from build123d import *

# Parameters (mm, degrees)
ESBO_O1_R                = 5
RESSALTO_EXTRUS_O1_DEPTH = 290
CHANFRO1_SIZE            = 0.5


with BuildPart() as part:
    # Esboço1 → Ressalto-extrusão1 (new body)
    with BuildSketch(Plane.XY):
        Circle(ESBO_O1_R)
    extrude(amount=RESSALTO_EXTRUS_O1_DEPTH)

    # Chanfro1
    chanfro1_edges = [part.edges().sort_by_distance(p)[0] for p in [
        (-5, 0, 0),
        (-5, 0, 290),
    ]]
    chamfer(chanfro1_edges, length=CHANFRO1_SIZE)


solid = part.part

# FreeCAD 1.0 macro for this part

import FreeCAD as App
import Part
import Sketcher


def edges_at(feature, points):
    """Names of the edges that pass closest to the given points."""
    edges = feature.Shape.Edges
    near = lambda p: min(range(len(edges)), key=lambda i: edges[i].distToShape(Part.Vertex(*p))[0])
    return sorted({f"Edge{near(p) + 1}" for p in points})

doc = App.newDocument("Part")
body = doc.addObject("PartDesign::Body", "Body")

# Sketch on XY plane
sketch1 = body.newObject("Sketcher::SketchObject", "Sketch")
sketch1.AttachmentSupport = (doc.getObject("XY_Plane"), [""])
sketch1.MapMode = "FlatFace"
sketch1.addGeometry(Part.Circle(App.Vector(0, 0, 0), App.Vector(0, 0, 1), 5), False)
sketch1.addConstraint(Sketcher.Constraint("Coincident", 0, 3, -1, 1))
sketch1.addConstraint(Sketcher.Constraint("Diameter", 0, 10.0))
pad1 = body.newObject("PartDesign::Pad", "Pad")
pad1.Profile = sketch1
pad1.Length = 290
doc.recompute()

chamfer = body.newObject("PartDesign::Chamfer", "Chamfer")
chamfer.Base = (pad1, edges_at(pad1, [(-5, 0, 0), (-5, 0, 290)]))
chamfer.Size = 0.5

doc.recompute()
